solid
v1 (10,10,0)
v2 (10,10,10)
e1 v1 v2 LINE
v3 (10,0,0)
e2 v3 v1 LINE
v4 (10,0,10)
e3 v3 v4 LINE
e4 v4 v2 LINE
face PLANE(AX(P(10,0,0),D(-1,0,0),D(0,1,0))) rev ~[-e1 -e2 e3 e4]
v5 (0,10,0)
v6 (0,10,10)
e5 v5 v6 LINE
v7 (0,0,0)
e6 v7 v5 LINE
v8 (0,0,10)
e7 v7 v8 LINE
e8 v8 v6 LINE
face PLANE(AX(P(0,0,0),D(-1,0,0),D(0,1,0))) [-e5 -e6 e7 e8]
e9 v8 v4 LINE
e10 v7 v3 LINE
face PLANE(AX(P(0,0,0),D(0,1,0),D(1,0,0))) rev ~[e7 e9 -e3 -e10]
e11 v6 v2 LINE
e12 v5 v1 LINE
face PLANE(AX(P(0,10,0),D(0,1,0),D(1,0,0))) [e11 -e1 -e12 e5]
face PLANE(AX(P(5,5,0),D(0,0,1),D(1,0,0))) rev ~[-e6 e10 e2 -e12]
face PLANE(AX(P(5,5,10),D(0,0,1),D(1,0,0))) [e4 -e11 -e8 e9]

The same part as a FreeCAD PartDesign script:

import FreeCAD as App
import Part
import Sketcher
Q = App.Units.Quantity


def add_polygon(sketch, points):
    """Adds a closed chain of lines whose ends are joined by coincident constraints."""
    first, n = sketch.GeometryCount, len(points)
    for a, b in zip(points, points[1:] + points[:1]):
        sketch.addGeometry(Part.LineSegment(App.Vector(*a, 0), App.Vector(*b, 0)), False)
    for i in range(n):
        sketch.addConstraint(Sketcher.Constraint("Coincident", first + i, 2, first + (i + 1) % n, 1))

doc = App.newDocument("Part")
body = doc.addObject("PartDesign::Body", "Body")

# Sketch on XY plane
sketch1 = body.newObject("Sketcher::SketchObject", "Sketch")
sketch1.AttachmentSupport = (doc.getObject("XY_Plane"), [""])
sketch1.MapMode = "FlatFace"
add_polygon(sketch1, [(0, 10), (0, 0), (10, 0), (10, 10)])  # lines 0-3
sketch1.addConstraint([
    Sketcher.Constraint("Vertical", 0),
    Sketcher.Constraint("Horizontal", 1),
    Sketcher.Constraint("Vertical", 2),
    Sketcher.Constraint("Horizontal", 3),
    Sketcher.Constraint("Coincident", 0, 2, -1, 1),
    Sketcher.Constraint("Equal", 3, 0),
    Sketcher.Constraint("DistanceX", 1, 1, 1, 2, Q("10 mm")),
])
pad1 = body.newObject("PartDesign::Pad", "Pad")
pad1.Profile = sketch1
pad1.Length = 10

doc.recompute()
